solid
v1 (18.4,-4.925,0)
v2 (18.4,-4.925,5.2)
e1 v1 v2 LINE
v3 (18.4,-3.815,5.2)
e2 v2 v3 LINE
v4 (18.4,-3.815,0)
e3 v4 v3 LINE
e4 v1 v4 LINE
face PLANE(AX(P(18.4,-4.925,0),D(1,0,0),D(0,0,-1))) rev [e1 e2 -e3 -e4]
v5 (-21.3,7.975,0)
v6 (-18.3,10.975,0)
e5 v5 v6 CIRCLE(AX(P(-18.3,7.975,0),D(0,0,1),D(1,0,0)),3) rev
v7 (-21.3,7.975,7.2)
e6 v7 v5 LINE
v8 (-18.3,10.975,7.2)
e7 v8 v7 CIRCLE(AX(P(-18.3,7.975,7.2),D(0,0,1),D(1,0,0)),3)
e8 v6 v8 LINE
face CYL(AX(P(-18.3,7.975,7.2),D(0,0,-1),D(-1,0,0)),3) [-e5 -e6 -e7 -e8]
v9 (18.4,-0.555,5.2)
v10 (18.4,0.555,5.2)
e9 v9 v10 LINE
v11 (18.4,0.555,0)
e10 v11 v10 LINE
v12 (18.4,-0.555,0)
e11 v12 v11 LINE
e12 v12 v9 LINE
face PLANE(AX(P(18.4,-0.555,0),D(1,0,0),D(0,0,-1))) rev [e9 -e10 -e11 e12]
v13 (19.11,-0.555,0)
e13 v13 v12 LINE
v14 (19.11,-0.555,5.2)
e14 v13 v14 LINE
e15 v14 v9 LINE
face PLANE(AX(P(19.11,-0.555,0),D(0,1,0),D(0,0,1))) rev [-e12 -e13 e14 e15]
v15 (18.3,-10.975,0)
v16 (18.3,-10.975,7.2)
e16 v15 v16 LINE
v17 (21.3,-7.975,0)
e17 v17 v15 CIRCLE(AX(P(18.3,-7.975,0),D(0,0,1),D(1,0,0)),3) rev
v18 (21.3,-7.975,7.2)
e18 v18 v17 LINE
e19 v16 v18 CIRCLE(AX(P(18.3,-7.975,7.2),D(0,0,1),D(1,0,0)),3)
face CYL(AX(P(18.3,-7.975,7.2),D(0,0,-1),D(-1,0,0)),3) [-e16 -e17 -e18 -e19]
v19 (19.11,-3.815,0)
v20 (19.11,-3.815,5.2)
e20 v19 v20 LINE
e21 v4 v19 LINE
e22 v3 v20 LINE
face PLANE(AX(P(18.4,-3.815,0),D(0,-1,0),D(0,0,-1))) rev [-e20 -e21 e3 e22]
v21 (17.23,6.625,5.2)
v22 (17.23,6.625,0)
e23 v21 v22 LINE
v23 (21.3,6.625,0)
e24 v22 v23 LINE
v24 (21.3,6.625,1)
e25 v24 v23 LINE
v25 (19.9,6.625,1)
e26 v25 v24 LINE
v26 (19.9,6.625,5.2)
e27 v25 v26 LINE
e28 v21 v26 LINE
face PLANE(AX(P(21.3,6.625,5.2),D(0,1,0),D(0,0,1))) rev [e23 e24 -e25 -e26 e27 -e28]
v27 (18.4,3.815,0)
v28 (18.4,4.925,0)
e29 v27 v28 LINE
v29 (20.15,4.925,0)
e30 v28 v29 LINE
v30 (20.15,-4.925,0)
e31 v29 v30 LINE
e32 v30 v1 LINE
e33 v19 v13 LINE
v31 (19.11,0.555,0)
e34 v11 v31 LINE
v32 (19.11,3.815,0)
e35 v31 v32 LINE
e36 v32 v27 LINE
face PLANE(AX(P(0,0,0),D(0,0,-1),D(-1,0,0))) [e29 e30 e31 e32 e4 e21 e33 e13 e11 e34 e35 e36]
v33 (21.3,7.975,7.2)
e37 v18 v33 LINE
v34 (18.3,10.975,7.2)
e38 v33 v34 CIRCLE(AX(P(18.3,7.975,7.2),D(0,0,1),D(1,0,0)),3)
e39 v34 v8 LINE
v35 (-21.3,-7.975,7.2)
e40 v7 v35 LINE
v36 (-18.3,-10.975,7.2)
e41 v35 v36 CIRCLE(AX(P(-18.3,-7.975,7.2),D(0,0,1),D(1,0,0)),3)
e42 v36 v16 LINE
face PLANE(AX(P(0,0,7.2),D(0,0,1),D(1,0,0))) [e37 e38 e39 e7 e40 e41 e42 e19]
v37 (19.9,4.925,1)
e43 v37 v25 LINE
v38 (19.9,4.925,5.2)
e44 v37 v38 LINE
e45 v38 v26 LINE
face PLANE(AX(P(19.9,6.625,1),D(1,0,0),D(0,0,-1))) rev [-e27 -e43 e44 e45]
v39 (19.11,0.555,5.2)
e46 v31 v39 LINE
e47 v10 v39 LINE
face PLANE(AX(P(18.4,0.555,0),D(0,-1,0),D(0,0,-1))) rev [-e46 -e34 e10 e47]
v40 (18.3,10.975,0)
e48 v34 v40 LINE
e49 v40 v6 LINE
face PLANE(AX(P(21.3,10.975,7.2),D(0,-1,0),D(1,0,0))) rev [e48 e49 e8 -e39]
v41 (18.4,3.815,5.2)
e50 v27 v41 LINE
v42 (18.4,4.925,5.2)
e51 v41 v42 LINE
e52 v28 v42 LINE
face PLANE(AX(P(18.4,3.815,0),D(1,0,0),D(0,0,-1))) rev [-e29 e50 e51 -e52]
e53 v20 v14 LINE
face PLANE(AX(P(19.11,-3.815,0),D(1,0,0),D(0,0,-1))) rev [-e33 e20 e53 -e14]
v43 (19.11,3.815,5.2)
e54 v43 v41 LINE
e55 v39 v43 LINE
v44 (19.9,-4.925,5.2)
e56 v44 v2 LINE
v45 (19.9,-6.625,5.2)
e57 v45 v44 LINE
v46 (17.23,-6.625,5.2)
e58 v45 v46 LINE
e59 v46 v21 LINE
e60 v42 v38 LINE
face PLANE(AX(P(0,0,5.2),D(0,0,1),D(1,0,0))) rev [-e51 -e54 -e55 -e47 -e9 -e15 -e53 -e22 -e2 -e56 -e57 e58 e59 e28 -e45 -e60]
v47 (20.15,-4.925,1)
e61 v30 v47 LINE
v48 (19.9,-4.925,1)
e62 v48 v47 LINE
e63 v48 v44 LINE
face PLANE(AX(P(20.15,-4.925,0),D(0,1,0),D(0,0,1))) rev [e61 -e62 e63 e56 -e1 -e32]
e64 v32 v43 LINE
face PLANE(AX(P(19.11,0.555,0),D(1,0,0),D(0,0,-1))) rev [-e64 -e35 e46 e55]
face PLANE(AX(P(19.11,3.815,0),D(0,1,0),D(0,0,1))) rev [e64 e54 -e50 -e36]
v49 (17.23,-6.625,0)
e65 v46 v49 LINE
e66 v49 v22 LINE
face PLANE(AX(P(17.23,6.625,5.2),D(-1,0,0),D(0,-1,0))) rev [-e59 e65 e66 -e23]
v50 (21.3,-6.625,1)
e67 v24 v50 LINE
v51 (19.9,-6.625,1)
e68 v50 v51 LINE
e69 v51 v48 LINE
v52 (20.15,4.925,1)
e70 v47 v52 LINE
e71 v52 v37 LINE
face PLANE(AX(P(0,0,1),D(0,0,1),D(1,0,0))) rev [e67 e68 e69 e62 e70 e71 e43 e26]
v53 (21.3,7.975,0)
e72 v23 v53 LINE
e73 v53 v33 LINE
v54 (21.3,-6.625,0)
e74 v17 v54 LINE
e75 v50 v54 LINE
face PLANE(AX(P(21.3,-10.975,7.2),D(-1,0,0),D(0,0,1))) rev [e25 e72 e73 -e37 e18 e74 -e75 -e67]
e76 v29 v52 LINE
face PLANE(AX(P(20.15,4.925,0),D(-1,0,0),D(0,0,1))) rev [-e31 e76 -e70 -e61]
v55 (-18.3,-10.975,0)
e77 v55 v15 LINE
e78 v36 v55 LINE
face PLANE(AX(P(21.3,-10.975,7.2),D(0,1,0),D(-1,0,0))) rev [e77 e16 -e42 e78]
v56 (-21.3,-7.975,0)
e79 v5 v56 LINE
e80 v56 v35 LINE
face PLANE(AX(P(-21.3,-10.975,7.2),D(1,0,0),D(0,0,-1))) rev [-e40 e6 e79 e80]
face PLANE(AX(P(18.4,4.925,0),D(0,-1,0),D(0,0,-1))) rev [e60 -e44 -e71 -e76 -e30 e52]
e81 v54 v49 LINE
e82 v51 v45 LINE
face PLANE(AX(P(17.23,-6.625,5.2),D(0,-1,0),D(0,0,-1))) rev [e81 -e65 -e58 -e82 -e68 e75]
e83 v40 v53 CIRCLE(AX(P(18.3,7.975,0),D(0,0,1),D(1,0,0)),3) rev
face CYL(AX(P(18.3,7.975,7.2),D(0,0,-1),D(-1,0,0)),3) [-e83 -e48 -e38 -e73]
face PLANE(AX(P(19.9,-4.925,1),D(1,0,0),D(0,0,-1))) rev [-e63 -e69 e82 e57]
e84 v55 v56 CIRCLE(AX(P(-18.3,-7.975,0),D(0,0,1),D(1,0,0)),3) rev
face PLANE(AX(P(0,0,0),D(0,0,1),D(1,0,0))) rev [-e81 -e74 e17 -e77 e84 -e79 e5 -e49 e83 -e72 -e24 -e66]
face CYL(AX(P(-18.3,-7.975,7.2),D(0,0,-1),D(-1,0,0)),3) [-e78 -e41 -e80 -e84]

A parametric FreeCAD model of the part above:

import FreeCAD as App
import Part
import Sketcher

V = App.Vector
Q = App.Units.Quantity


def edges_at(feature, points):
    """Names of the edges that pass closest to the given points."""
    edges = feature.Shape.Edges
    near = lambda p: min(range(len(edges)), key=lambda i: edges[i].distToShape(Part.Vertex(*p))[0])
    return sorted({f"Edge{near(p) + 1}" for p in points})

doc = App.newDocument("Part")
body = doc.addObject("PartDesign::Body", "Body")

# Sketch on XY plane
sketch1 = body.newObject("Sketcher::SketchObject", "Sketch")
sketch1.AttachmentSupport = (doc.getObject("XY_Plane"), [""])
sketch1.MapMode = "FlatFace"
sketch1.addGeometry(Part.LineSegment(V(-21, 11, 0), V(-21, -11, 0)), False)
sketch1.addGeometry(Part.LineSegment(V(-21, -11, 0), V(21, -11, 0)), False)
sketch1.addGeometry(Part.LineSegment(V(21, -11, 0), V(21, 11, 0)), False)
sketch1.addGeometry(Part.LineSegment(V(21, 11, 0), V(-21, 11, 0)), False)
sketch1.addConstraint(Sketcher.Constraint("Coincident", 0, 2, 1, 1))
sketch1.addConstraint(Sketcher.Constraint("Coincident", 1, 2, 2, 1))
sketch1.addConstraint(Sketcher.Constraint("Coincident", 2, 2, 3, 1))
sketch1.addConstraint(Sketcher.Constraint("Coincident", 3, 2, 0, 1))
sketch1.addConstraint(Sketcher.Constraint("Vertical", 0))
sketch1.addConstraint(Sketcher.Constraint("Horizontal", 1))
sketch1.addConstraint(Sketcher.Constraint("Vertical", 2))
sketch1.addConstraint(Sketcher.Constraint("Horizontal", 3))
sketch1.addConstraint(Sketcher.Constraint("Symmetric", 0, 2, 2, 2, -1, 1))
sketch1.addConstraint(Sketcher.Constraint("DistanceX", 1, 1, 1, 2, Q("42.6 mm")))
sketch1.addConstraint(Sketcher.Constraint("DistanceY", 0, 2, 0, 1, Q("21.95 mm")))
pad1 = body.newObject("PartDesign::Pad", "Pad")
pad1.Profile = sketch1
pad1.Length = 7.2
doc.recompute()

fillet = body.newObject("PartDesign::Fillet", "Fillet")
fillet.Base = (pad1, edges_at(pad1, [
    (-21.3, 10.975, 3.6),
    (21.3, 10.975, 3.6),
    (21.3, -10.975, 3.6),
    (-21.3, -10.975, 3.6),
]))
fillet.Radius = 3

# Sketch on XY plane
sketch2 = body.newObject("Sketcher::SketchObject", "Sketch001")
sketch2.AttachmentSupport = (doc.getObject("XY_Plane"), [""])
sketch2.MapMode = "FlatFace"
sketch2.addGeometry(Part.LineSegment(V(21.3, 6.6, 0), V(21.3, -6.6, 0)), False)
sketch2.addGeometry(Part.LineSegment(V(21.3, -6.6, 0), V(17.2, -6.6, 0)), False)
sketch2.addGeometry(Part.LineSegment(V(17.2, -6.6, 0), V(17.2, 6.6, 0)), False)
sketch2.addGeometry(Part.LineSegment(V(17.2, 6.6, 0), V(21.3, 6.6, 0)), False)
sketch2.addConstraint(Sketcher.Constraint("Coincident", 0, 2, 1, 1))
sketch2.addConstraint(Sketcher.Constraint("Coincident", 1, 2, 2, 1))
sketch2.addConstraint(Sketcher.Constraint("Coincident", 2, 2, 3, 1))
sketch2.addConstraint(Sketcher.Constraint("Coincident", 3, 2, 0, 1))
sketch2.addConstraint(Sketcher.Constraint("Vertical", 0))
sketch2.addConstraint(Sketcher.Constraint("Horizontal", 1))
sketch2.addConstraint(Sketcher.Constraint("Vertical", 2))
sketch2.addConstraint(Sketcher.Constraint("Horizontal", 3))
sketch2.addConstraint(Sketcher.Constraint("DistanceX", 1, 2, 1, 1, Q("4.07 mm")))
sketch2.addConstraint(Sketcher.Constraint("DistanceY", 0, 2, 0, 1, Q("13.25 mm")))
sketch2.addConstraint(Sketcher.Constraint("DistanceX", -1, 1, 0, 2, Q("21.3 mm")))
sketch2.addConstraint(Sketcher.Constraint("DistanceY", 0, 2, -1, 1, Q("6.625 mm")))
pocket1 = body.newObject("PartDesign::Pocket", "Pocket")
pocket1.Profile = sketch2
pocket1.Length = 5.2
pocket1.Reversed = True

# Sketch on XY plane
sketch3 = body.newObject("Sketcher::SketchObject", "Sketch002")
sketch3.AttachmentSupport = (doc.getObject("XY_Plane"), [""])
sketch3.MapMode = "FlatFace"
sketch3.AttachmentOffset = App.Placement(V(0, 0, 5.2), App.Rotation())
sketch3.addGeometry(Part.LineSegment(V(20.1, 4.9, 0), V(20.1, -4.9, 0)), False)
sketch3.addGeometry(Part.LineSegment(V(20.1, -4.9, 0), V(18.4, -4.9, 0)), False)
sketch3.addGeometry(Part.LineSegment(V(18.4, -4.9, 0), V(18.4, -3.8, 0)), False)
sketch3.addGeometry(Part.LineSegment(V(18.4, -3.8, 0), V(19.1, -3.8, 0)), False)
sketch3.addGeometry(Part.LineSegment(V(19.1, -3.8, 0), V(19.1, -0.6, 0)), False)
sketch3.addGeometry(Part.LineSegment(V(19.1, -0.6, 0), V(18.4, -0.6, 0)), False)
sketch3.addGeometry(Part.LineSegment(V(18.4, -0.6, 0), V(18.4, 0.6, 0)), False)
sketch3.addGeometry(Part.LineSegment(V(18.4, 0.6, 0), V(19.1, 0.6, 0)), False)
sketch3.addGeometry(Part.LineSegment(V(19.1, 0.6, 0), V(19.1, 3.8, 0)), False)
sketch3.addGeometry(Part.LineSegment(V(19.1, 3.8, 0), V(18.4, 3.8, 0)), False)
sketch3.addGeometry(Part.LineSegment(V(18.4, 3.8, 0), V(18.4, 4.9, 0)), False)
sketch3.addGeometry(Part.LineSegment(V(18.4, 4.9, 0), V(20.1, 4.9, 0)), False)
sketch3.addConstraint(Sketcher.Constraint("Coincident", 0, 2, 1, 1))
sketch3.addConstraint(Sketcher.Constraint("Coincident", 1, 2, 2, 1))
sketch3.addConstraint(Sketcher.Constraint("Coincident", 2, 2, 3, 1))
sketch3.addConstraint(Sketcher.Constraint("Coincident", 3, 2, 4, 1))
sketch3.addConstraint(Sketcher.Constraint("Coincident", 4, 2, 5, 1))
sketch3.addConstraint(Sketcher.Constraint("Coincident", 5, 2, 6, 1))
sketch3.addConstraint(Sketcher.Constraint("Coincident", 6, 2, 7, 1))
sketch3.addConstraint(Sketcher.Constraint("Coincident", 7, 2, 8, 1))
sketch3.addConstraint(Sketcher.Constraint("Coincident", 8, 2, 9, 1))
sketch3.addConstraint(Sketcher.Constraint("Coincident", 9, 2, 10, 1))
sketch3.addConstraint(Sketcher.Constraint("Coincident", 10, 2, 11, 1))
sketch3.addConstraint(Sketcher.Constraint("Coincident", 11, 2, 0, 1))
sketch3.addConstraint(Sketcher.Constraint("Vertical", 0))
sketch3.addConstraint(Sketcher.Constraint("Horizontal", 1))
sketch3.addConstraint(Sketcher.Constraint("Vertical", 2))
sketch3.addConstraint(Sketcher.Constraint("Horizontal", 3))
sketch3.addConstraint(Sketcher.Constraint("Vertical", 4))
sketch3.addConstraint(Sketcher.Constraint("Horizontal", 5))
sketch3.addConstraint(Sketcher.Constraint("Vertical", 6))
sketch3.addConstraint(Sketcher.Constraint("Horizontal", 7))
sketch3.addConstraint(Sketcher.Constraint("Vertical", 8))
sketch3.addConstraint(Sketcher.Constraint("Horizontal", 9))
sketch3.addConstraint(Sketcher.Constraint("Vertical", 10))
sketch3.addConstraint(Sketcher.Constraint("Horizontal", 11))
sketch3.addConstraint(Sketcher.Constraint("Symmetric", 4, 2, 7, 2, -1))
sketch3.addConstraint(Sketcher.Constraint("Symmetric", 2, 2, 9, 2, -1))
sketch3.addConstraint(Sketcher.Constraint("Vertical", 2, 2, 5, 2))
sketch3.addConstraint(Sketcher.Constraint("Equal", 2, 6))
sketch3.addConstraint(Sketcher.Constraint("Equal", 6, 10))
sketch3.addConstraint(Sketcher.Constraint("DistanceX", 1, 2, 1, 1, Q("1.75 mm")))
sketch3.addConstraint(Sketcher.Constraint("DistanceX", 3, 1, 3, 2, Q("0.71 mm")))
sketch3.addConstraint(Sketcher.Constraint("DistanceY", 0, 2, 0, 1, Q("9.85 mm")))
sketch3.addConstraint(Sketcher.Constraint("DistanceY", 2, 1, 2, 2, Q("1.11 mm")))
sketch3.addConstraint(Sketcher.Constraint("DistanceX", -1, 1, 1, 2, Q("18.4 mm")))
pad2 = body.newObject("PartDesign::Pad", "Pad001")
pad2.Profile = sketch3
pad2.Length = 5.2
pad2.Reversed = True

# Sketch on XY plane
sketch4 = body.newObject("Sketcher::SketchObject", "Sketch003")
sketch4.AttachmentSupport = (doc.getObject("XY_Plane"), [""])
sketch4.MapMode = "FlatFace"
sketch4.AttachmentOffset = App.Placement(V(0, 0, 5.2), App.Rotation())
sketch4.addGeometry(Part.LineSegment(V(21.3, 6.62, 0), V(21.3, -6.62, 0)), False)
sketch4.addGeometry(Part.LineSegment(V(21.3, -6.62, 0), V(19.9, -6.62, 0)), False)
sketch4.addGeometry(Part.LineSegment(V(19.9, -6.62, 0), V(19.9, -4.92, 0)), False)
sketch4.addGeometry(Part.LineSegment(V(19.9, -4.92, 0), V(20.15, -4.92, 0)), False)
sketch4.addGeometry(Part.LineSegment(V(20.15, -4.92, 0), V(20.15, 4.92, 0)), False)
sketch4.addGeometry(Part.LineSegment(V(20.15, 4.92, 0), V(19.9, 4.92, 0)), False)
sketch4.addGeometry(Part.LineSegment(V(19.9, 4.92, 0), V(19.9, 6.62, 0)), False)
sketch4.addGeometry(Part.LineSegment(V(19.9, 6.62, 0), V(21.3, 6.62, 0)), False)
sketch4.addConstraint(Sketcher.Constraint("Coincident", 0, 2, 1, 1))
sketch4.addConstraint(Sketcher.Constraint("Coincident", 1, 2, 2, 1))
sketch4.addConstraint(Sketcher.Constraint("Coincident", 2, 2, 3, 1))
sketch4.addConstraint(Sketcher.Constraint("Coincident", 3, 2, 4, 1))
sketch4.addConstraint(Sketcher.Constraint("Coincident", 4, 2, 5, 1))
sketch4.addConstraint(Sketcher.Constraint("Coincident", 5, 2, 6, 1))
sketch4.addConstraint(Sketcher.Constraint("Coincident", 6, 2, 7, 1))
sketch4.addConstraint(Sketcher.Constraint("Coincident", 7, 2, 0, 1))
sketch4.addConstraint(Sketcher.Constraint("Vertical", 0))
sketch4.addConstraint(Sketcher.Constraint("Horizontal", 1))
sketch4.addConstraint(Sketcher.Constraint("Vertical", 2))
sketch4.addConstraint(Sketcher.Constraint("Horizontal", 3))
sketch4.addConstraint(Sketcher.Constraint("Vertical", 4))
sketch4.addConstraint(Sketcher.Constraint("Horizontal", 5))
sketch4.addConstraint(Sketcher.Constraint("Vertical", 6))
sketch4.addConstraint(Sketcher.Constraint("Horizontal", 7))
sketch4.addConstraint(Sketcher.Constraint("Symmetric", 2, 2, 5, 2, -1))
sketch4.addConstraint(Sketcher.Constraint("Equal", 2, 6))
sketch4.addConstraint(Sketcher.Constraint("DistanceX", 1, 2, 1, 1, Q("1.4 mm")))
sketch4.addConstraint(Sketcher.Constraint("DistanceY", 2, 1, 2, 2, Q("1.7 mm")))
sketch4.addConstraint(Sketcher.Constraint("DistanceX", 3, 1, 3, 2, Q("0.25 mm")))
sketch4.addConstraint(Sketcher.Constraint("DistanceY", 0, 2, 0, 1, Q("13.25 mm")))
sketch4.addConstraint(Sketcher.Constraint("DistanceX", -1, 1, 0, 2, Q("21.3 mm")))
pad3 = body.newObject("PartDesign::Pad", "Pad002")
pad3.Profile = sketch4
pad3.Length = 4.2
pad3.Reversed = True

doc.recompute()
